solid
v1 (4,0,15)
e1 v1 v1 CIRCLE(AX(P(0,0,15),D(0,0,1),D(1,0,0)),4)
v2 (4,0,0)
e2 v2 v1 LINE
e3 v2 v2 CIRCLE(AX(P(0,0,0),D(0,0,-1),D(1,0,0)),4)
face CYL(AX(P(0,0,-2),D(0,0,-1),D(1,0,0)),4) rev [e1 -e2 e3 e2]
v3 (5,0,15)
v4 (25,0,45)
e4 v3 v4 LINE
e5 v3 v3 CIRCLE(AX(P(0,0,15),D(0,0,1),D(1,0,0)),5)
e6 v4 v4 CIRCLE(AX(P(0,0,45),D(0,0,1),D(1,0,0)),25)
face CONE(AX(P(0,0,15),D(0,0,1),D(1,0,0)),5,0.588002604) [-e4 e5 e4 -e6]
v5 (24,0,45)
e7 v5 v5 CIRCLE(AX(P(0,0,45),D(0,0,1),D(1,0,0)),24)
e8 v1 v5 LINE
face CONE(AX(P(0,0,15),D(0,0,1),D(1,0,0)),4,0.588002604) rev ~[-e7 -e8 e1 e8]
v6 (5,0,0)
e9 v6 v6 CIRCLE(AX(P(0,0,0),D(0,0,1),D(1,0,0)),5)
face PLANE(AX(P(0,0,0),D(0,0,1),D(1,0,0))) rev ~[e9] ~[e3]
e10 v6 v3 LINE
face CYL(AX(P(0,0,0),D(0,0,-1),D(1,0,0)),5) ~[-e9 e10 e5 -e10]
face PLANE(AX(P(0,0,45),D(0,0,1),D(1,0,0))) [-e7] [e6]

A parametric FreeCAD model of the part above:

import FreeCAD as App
import Part
import Sketcher
Q = App.Units.Quantity


def add_polygon(sketch, points):
    """Adds a closed chain of lines whose ends are joined by coincident constraints."""
    first, n = sketch.GeometryCount, len(points)
    for a, b in zip(points, points[1:] + points[:1]):
        sketch.addGeometry(Part.LineSegment(App.Vector(*a, 0), App.Vector(*b, 0)), False)
    for i in range(n):
        sketch.addConstraint(Sketcher.Constraint("Coincident", first + i, 2, first + (i + 1) % n, 1))

doc = App.newDocument("Part")
body = doc.addObject("PartDesign::Body", "Body")

# Sketch on XZ plane
sketch1 = doc.addObject("Sketcher::SketchObject", "Sketch")
body.addObject(sketch1)
sketch1.AttachmentSupport = (doc.XZ_Plane, [""])
sketch1.MapMode = "FlatFace"
add_polygon(sketch1, [(0, 15), (4, 15), (24, 45), (0, 45)])  # lines 0-3
sketch1.addConstraint([
    Sketcher.Constraint("Horizontal", 0),
    Sketcher.Constraint("Horizontal", 2),
    Sketcher.Constraint("Vertical", 3),
    Sketcher.Constraint("PointOnObject", 2, 2, -2),
    Sketcher.Constraint("DistanceX", 0, 1, 0, 2, Q("4 mm")),
    Sketcher.Constraint("DistanceX", 2, 2, 2, 1, Q("24 mm")),
    Sketcher.Constraint("DistanceY", 3, 2, 3, 1, Q("30 mm")),
    Sketcher.Constraint("DistanceY", -1, 1, 0, 2, Q("15 mm")),
])
revolution = doc.addObject("PartDesign::Revolution", "Revolution")
body.addObject(revolution)
revolution.Profile = sketch1
revolution.ReferenceAxis = (sketch1, ["V_Axis"])
revolution.Angle = 360
body2 = doc.addObject("PartDesign::Body", "Body001")

# Sketch on XY plane
sketch2 = doc.addObject("Sketcher::SketchObject", "Sketch001")
body2.addObject(sketch2)
sketch2.AttachmentSupport = (doc.getObject("XY_Plane001"), [""])
sketch2.MapMode = "FlatFace"
sketch2.AttachmentOffset = App.Placement(App.Vector(0, 0, -2), App.Rotation())
sketch2.addGeometry(Part.Circle(App.Vector(0, 0, 0), App.Vector(0, 0, 1), 4), False)
sketch2.addConstraint([
    Sketcher.Constraint("Coincident", 0, 3, -1, 1),
    Sketcher.Constraint("Diameter", 0, Q("8 mm")),
])
pad1 = doc.addObject("PartDesign::Pad", "Pad")
body2.addObject(pad1)
pad1.Profile = sketch2
pad1.Length = 20
doc.recompute()

boolean = doc.addObject("PartDesign::Boolean", "Boolean")
body2.addObject(boolean)
boolean.Type = "Fuse"
boolean.addObjects([body])
body3 = doc.addObject("PartDesign::Body", "Body002")

# Sketch on XZ plane
sketch3 = doc.addObject("Sketcher::SketchObject", "Sketch002")
body3.addObject(sketch3)
sketch3.AttachmentSupport = (doc.getObject("XZ_Plane002"), [""])
sketch3.MapMode = "FlatFace"
add_polygon(sketch3, [(0, 15), (5, 15), (25, 45), (0, 45)])  # lines 0-3
sketch3.addConstraint([
    Sketcher.Constraint("Horizontal", 0),
    Sketcher.Constraint("Horizontal", 2),
    Sketcher.Constraint("Vertical", 3),
    Sketcher.Constraint("PointOnObject", 2, 2, -2),
    Sketcher.Constraint("DistanceX", 0, 1, 0, 2, Q("5 mm")),
    Sketcher.Constraint("DistanceX", 2, 2, 2, 1, Q("25 mm")),
    Sketcher.Constraint("DistanceY", 3, 2, 3, 1, Q("30 mm")),
    Sketcher.Constraint("DistanceY", -1, 1, 0, 2, Q("15 mm")),
])
revolution2 = doc.addObject("PartDesign::Revolution", "Revolution001")
body3.addObject(revolution2)
revolution2.Profile = sketch3
revolution2.ReferenceAxis = (sketch3, ["V_Axis"])
revolution2.Angle = 360
body4 = doc.addObject("PartDesign::Body", "Body003")

# Sketch on XY plane
sketch4 = doc.addObject("Sketcher::SketchObject", "Sketch003")
body4.addObject(sketch4)
sketch4.AttachmentSupport = (doc.getObject("XY_Plane003"), [""])
sketch4.MapMode = "FlatFace"
sketch4.addGeometry(Part.Circle(App.Vector(0, 0, 0), App.Vector(0, 0, 1), 5), False)
sketch4.addConstraint([
    Sketcher.Constraint("Coincident", 0, 3, -1, 1),
    Sketcher.Constraint("Diameter", 0, Q("10 mm")),
])
pad2 = doc.addObject("PartDesign::Pad", "Pad001")
body4.addObject(pad2)
pad2.Profile = sketch4
pad2.Length = 15
doc.recompute()

boolean2 = doc.addObject("PartDesign::Boolean", "Boolean001")
body4.addObject(boolean2)
boolean2.Type = "Fuse"
boolean2.addObjects([body3])
doc.recompute()

boolean3 = doc.addObject("PartDesign::Boolean", "Boolean002")
body4.addObject(boolean3)
boolean3.Type = "Cut"
boolean3.addObjects([body2])

doc.recompute()
